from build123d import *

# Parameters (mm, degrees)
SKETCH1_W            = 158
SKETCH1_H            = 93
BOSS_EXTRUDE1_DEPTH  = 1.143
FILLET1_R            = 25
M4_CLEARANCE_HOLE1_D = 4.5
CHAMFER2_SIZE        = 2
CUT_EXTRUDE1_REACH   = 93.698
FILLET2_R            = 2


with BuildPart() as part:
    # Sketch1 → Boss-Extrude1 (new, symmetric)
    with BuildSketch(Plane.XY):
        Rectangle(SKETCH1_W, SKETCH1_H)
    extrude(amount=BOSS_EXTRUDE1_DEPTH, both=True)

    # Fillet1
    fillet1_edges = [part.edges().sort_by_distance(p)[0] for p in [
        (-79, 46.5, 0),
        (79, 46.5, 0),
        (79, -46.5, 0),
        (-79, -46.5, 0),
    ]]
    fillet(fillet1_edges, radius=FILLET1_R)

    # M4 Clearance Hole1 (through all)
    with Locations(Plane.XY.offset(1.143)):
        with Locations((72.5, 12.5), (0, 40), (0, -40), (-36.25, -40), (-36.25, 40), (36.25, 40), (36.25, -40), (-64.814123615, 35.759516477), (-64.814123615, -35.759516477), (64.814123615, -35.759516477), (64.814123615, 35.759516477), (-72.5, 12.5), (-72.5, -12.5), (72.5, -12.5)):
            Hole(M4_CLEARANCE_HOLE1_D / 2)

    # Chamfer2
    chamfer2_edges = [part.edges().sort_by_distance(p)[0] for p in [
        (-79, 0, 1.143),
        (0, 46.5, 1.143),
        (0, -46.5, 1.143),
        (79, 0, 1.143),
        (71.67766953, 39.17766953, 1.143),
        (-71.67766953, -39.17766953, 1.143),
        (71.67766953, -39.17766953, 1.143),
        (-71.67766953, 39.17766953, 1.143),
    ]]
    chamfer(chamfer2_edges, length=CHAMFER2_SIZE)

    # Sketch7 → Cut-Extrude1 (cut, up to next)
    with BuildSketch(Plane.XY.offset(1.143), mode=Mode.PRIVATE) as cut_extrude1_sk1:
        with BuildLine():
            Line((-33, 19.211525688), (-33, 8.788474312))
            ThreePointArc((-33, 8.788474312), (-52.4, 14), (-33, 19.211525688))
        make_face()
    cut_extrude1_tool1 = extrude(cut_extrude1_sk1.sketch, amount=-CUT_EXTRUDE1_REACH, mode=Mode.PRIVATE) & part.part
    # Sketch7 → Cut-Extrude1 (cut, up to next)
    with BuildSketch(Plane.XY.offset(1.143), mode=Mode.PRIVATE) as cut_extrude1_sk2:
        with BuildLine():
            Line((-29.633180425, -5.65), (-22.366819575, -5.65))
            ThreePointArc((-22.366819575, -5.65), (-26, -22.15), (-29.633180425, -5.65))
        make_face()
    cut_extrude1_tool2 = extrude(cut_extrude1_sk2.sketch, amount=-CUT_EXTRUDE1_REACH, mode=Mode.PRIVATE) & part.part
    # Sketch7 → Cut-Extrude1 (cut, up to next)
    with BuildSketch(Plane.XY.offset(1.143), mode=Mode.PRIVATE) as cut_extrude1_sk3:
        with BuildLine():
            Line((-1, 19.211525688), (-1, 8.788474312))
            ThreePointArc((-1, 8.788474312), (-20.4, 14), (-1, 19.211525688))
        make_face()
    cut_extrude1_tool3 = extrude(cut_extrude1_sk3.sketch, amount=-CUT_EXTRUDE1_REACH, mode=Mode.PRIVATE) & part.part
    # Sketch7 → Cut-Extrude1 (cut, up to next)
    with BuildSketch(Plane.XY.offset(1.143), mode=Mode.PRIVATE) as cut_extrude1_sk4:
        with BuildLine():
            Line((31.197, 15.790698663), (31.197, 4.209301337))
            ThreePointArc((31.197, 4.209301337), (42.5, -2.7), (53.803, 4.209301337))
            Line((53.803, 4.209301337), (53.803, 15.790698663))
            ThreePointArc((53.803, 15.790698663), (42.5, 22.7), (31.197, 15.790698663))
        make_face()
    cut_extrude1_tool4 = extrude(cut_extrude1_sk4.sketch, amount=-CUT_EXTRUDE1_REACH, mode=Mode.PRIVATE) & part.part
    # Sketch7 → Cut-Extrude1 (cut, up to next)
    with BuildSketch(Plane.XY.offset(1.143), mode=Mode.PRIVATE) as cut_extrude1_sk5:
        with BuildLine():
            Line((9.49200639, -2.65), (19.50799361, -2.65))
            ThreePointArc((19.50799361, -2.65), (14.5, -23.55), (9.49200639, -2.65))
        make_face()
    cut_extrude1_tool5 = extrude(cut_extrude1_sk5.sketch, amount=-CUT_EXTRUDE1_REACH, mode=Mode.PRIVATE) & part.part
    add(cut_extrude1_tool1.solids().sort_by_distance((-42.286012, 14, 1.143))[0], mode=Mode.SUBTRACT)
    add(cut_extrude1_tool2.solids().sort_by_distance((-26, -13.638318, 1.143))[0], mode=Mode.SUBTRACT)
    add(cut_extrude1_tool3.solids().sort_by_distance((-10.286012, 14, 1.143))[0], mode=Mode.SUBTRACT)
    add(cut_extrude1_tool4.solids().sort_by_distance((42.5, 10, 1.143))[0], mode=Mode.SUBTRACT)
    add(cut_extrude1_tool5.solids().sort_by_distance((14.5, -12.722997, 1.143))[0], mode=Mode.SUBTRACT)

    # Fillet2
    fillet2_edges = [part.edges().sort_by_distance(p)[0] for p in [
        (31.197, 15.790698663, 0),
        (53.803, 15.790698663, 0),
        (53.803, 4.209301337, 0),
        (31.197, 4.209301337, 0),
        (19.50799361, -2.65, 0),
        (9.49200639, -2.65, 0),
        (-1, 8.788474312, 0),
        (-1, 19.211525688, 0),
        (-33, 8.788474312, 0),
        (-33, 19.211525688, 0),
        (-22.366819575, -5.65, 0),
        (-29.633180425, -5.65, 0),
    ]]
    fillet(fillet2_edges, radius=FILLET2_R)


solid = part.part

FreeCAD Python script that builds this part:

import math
import FreeCAD as App
import Part
import Sketcher
Q = App.Units.Quantity


def edges_at(feature, points):
    """Names of the edges that pass closest to the given points."""
    edges = feature.Shape.Edges
    near = lambda p: min(range(len(edges)), key=lambda i: edges[i].distToShape(Part.Vertex(*p))[0])
    return sorted({f"Edge{near(p) + 1}" for p in points})


def add_polygon(sketch, points):
    """Adds a closed chain of lines whose ends are joined by coincident constraints."""
    first, n = sketch.GeometryCount, len(points)
    for a, b in zip(points, points[1:] + points[:1]):
        sketch.addGeometry(Part.LineSegment(App.Vector(*a, 0), App.Vector(*b, 0)), False)
    for i in range(n):
        sketch.addConstraint(Sketcher.Constraint("Coincident", first + i, 2, first + (i + 1) % n, 1))

doc = App.newDocument("Part")
params = doc.addObject("Spreadsheet::Sheet", "Params")
for row, (alias, value) in enumerate([
    ("sketch1_width", "158 mm"),
    ("sketch1_height", "93 mm"),
    ("pad1_length", "2.286 mm"),
    ("fillet_radius", "25 mm"),
    ("sketch2_diameter", "4.5 mm"),
    ("hole_diameter", "4.5 mm"),
    ("chamfer_size", "2 mm"),
    ("sketch3_radius", "10.4 mm"),
    ("sketch4_radius", "8.65 mm"),
    ("sketch5_radius", "10.4 mm"),
    ("sketch6_radius", "12.7 mm"),
    ("sketch7_radius", "11.05 mm"),
    ("fillet2_radius", "2 mm"),
], start=1):
    params.set(f"A{row}", alias)
    params.set(f"B{row}", "=" + value)
    params.setAlias(f"B{row}", alias)

body = doc.addObject("PartDesign::Body", "Body")

# Sketch on XY plane
sketch1 = body.newObject("Sketcher::SketchObject", "Sketch")
sketch1.AttachmentSupport = (doc.getObject("XY_Plane"), [""])
sketch1.MapMode = "FlatFace"
add_polygon(sketch1, [(-79, 46.5), (-79, -46.5), (79, -46.5), (79, 46.5)])  # lines 0-3
sketch1.addConstraint([
    Sketcher.Constraint("Vertical", 0),
    Sketcher.Constraint("Horizontal", 1),
    Sketcher.Constraint("Vertical", 2),
    Sketcher.Constraint("Horizontal", 3),
    Sketcher.Constraint("Symmetric", 0, 2, 2, 2, -1, 1),
    Sketcher.Constraint("DistanceX", 1, 1, 1, 2, Q("158 mm")),
    Sketcher.Constraint("DistanceY", 0, 2, 0, 1, Q("93 mm")),
])
sketch1.setExpression("Constraints[9]", "Params.sketch1_width")
sketch1.setExpression("Constraints[10]", "Params.sketch1_height")
pad1 = body.newObject("PartDesign::Pad", "Pad")
pad1.Profile = sketch1
pad1.setExpression("Length", "Params.pad1_length")
pad1.Midplane = True
doc.recompute()

fillet = body.newObject("PartDesign::Fillet", "Fillet")
fillet.Base = (pad1, edges_at(pad1, [
    (-79, 46.5, 0),
    (79, 46.5, 0),
    (79, -46.5, 0),
    (-79, -46.5, 0),
]))
fillet.setExpression("Radius", "Params.fillet_radius")

# Sketch on XY plane
sketch2 = body.newObject("Sketcher::SketchObject", "Sketch001")
sketch2.AttachmentSupport = (doc.getObject("XY_Plane"), [""])
sketch2.MapMode = "FlatFace"
sketch2.AttachmentOffset = App.Placement(App.Vector(0, 0, 1.143), App.Rotation())
sketch2.addGeometry([
    Part.Circle(App.Vector(72.5, 12.5, 0), App.Vector(0, 0, 1), 2.25),  # 0
    Part.Circle(App.Vector(0, 40, 0), App.Vector(0, 0, 1), 2.25),  # 1
    Part.Circle(App.Vector(0, -40, 0), App.Vector(0, 0, 1), 2.25),  # 2
    Part.Circle(App.Vector(-36.25, -40, 0), App.Vector(0, 0, 1), 2.25),  # 3
    Part.Circle(App.Vector(-36.25, 40, 0), App.Vector(0, 0, 1), 2.25),  # 4
    Part.Circle(App.Vector(36.25, 40, 0), App.Vector(0, 0, 1), 2.25),  # 5
    Part.Circle(App.Vector(36.25, -40, 0), App.Vector(0, 0, 1), 2.25),  # 6
    Part.Circle(App.Vector(-64.814124, 35.759516, 0), App.Vector(0, 0, 1), 2.25),  # 7
    Part.Circle(App.Vector(-64.814124, -35.759516, 0), App.Vector(0, 0, 1), 2.25),  # 8
    Part.Circle(App.Vector(64.814124, -35.759516, 0), App.Vector(0, 0, 1), 2.25),  # 9
    Part.Circle(App.Vector(64.814124, 35.759516, 0), App.Vector(0, 0, 1), 2.25),  # 10
    Part.Circle(App.Vector(-72.5, 12.5, 0), App.Vector(0, 0, 1), 2.25),  # 11
    Part.Circle(App.Vector(-72.5, -12.5, 0), App.Vector(0, 0, 1), 2.25),  # 12
    Part.Circle(App.Vector(72.5, -12.5, 0), App.Vector(0, 0, 1), 2.25),  # 13
], False)
sketch2.addConstraint([
    Sketcher.Constraint("Equal", 0, 1),
    Sketcher.Constraint("Equal", 1, 2),
    Sketcher.Constraint("Equal", 2, 3),
    Sketcher.Constraint("Equal", 3, 4),
    Sketcher.Constraint("Equal", 4, 5),
    Sketcher.Constraint("Equal", 5, 6),
    Sketcher.Constraint("Equal", 6, 7),
    Sketcher.Constraint("Equal", 7, 8),
    Sketcher.Constraint("Equal", 8, 9),
    Sketcher.Constraint("Equal", 9, 10),
    Sketcher.Constraint("Equal", 10, 11),
    Sketcher.Constraint("Equal", 11, 12),
    Sketcher.Constraint("Equal", 12, 13),
    Sketcher.Constraint("Symmetric", 1, 3, 2, 3, -1, 1),
    Sketcher.Constraint("Symmetric", 3, 3, 5, 3, -1, 1),
    Sketcher.Constraint("Symmetric", 4, 3, 6, 3, -1, 1),
    Sketcher.Constraint("Symmetric", 7, 3, 9, 3, -1, 1),
    Sketcher.Constraint("Symmetric", 8, 3, 10, 3, -1, 1),
    Sketcher.Constraint("Symmetric", 0, 3, 12, 3, -1, 1),
    Sketcher.Constraint("Symmetric", 11, 3, 13, 3, -1, 1),
    Sketcher.Constraint("Symmetric", 4, 3, 5, 3, -2),
    Sketcher.Constraint("Symmetric", 8, 3, 9, 3, -2),
    Sketcher.Constraint("Symmetric", 0, 3, 11, 3, -2),
    Sketcher.Constraint("PointOnObject", 1, 3, -2),
    Sketcher.Constraint("Horizontal", 2, 3, 3, 3),
    Sketcher.Constraint("Diameter", 0, Q("4.5 mm")),
    Sketcher.Constraint("DistanceY", -1, 1, 1, 3, Q("40 mm")),
    Sketcher.Constraint("DistanceY", 12, 3, 11, 3, Q("25 mm")),
    Sketcher.Constraint("DistanceX", -1, 1, 0, 3, Q("72.5 mm")),
    Sketcher.Constraint("DistanceX", 4, 3, 5, 3, Q("72.5 mm")),
    Sketcher.Constraint("DistanceX", 7, 3, -1, 1, Q("64.814124 mm")),
    Sketcher.Constraint("DistanceY", -1, 1, 7, 3, Q("35.759516 mm")),
])
sketch2.setExpression("Constraints[25]", "Params.sketch2_diameter")
doc.recompute()
hole = body.newObject("PartDesign::Hole", "Hole")
hole.Profile = sketch2
hole.ThreadType = "None"
hole.setExpression("Diameter", "Params.hole_diameter")
hole.DepthType = "ThroughAll"
doc.recompute()

chamfer = body.newObject("PartDesign::Chamfer", "Chamfer")
chamfer.Base = (hole, edges_at(hole, [
    (-79, 0, 1.143),
    (0, 46.5, 1.143),
    (0, -46.5, 1.143),
    (79, 0, 1.143),
    (71.678, 39.178, 1.143),
    (-71.678, -39.178, 1.143),
    (71.678, -39.178, 1.143),
    (-71.678, 39.178, 1.143),
]))
chamfer.setExpression("Size", "Params.chamfer_size")

# Sketch on XY plane
sketch3 = body.newObject("Sketcher::SketchObject", "Sketch002")
sketch3.AttachmentSupport = (doc.getObject("XY_Plane"), [""])
sketch3.MapMode = "FlatFace"
sketch3.AttachmentOffset = App.Placement(App.Vector(0, 0, 1.143), App.Rotation())
sketch3.addGeometry([
    Part.LineSegment(App.Vector(-33, 8.788474, 0), App.Vector(-33, 19.211526, 0)),
    Part.ArcOfCircle(Part.Circle(App.Vector(-42, 14, 0), App.Vector(0, 0, 1), 10.4), math.radians(30.073348), math.radians(329.926652)),
], False)
sketch3.addConstraint([
    Sketcher.Constraint("Coincident", 0, 1, 1, 2),
    Sketcher.Constraint("Coincident", 1, 1, 0, 2),
    Sketcher.Constraint("Vertical", 0),
    Sketcher.Constraint("Radius", 1, Q("10.4 mm")),
    Sketcher.Constraint("DistanceX", 1, 3, -1, 1, Q("42 mm")),
    Sketcher.Constraint("DistanceY", -1, 1, 1, 3, Q("14 mm")),
    Sketcher.Constraint("DistanceX", 0, 1, -1, 1, Q("33 mm")),
])
sketch3.setExpression("Constraints[3]", "Params.sketch3_radius")
pocket1 = body.newObject("PartDesign::Pocket", "Pocket")
pocket1.Profile = sketch3
pocket1.Type = "UpToFirst"

# Sketch on XY plane
sketch4 = body.newObject("Sketcher::SketchObject", "Sketch003")
sketch4.AttachmentSupport = (doc.getObject("XY_Plane"), [""])
sketch4.MapMode = "FlatFace"
sketch4.AttachmentOffset = App.Placement(App.Vector(0, 0, 1.143), App.Rotation())
sketch4.addGeometry([
    Part.LineSegment(App.Vector(-22.36682, -5.65, 0), App.Vector(-29.63318, -5.65, 0)),
    Part.ArcOfCircle(Part.Circle(App.Vector(-26, -13.5, 0), App.Vector(0, 0, 1), 8.65), math.radians(114.835904), math.radians(425.164096)),
], False)
sketch4.addConstraint([
    Sketcher.Constraint("Coincident", 0, 1, 1, 2),
    Sketcher.Constraint("Coincident", 1, 1, 0, 2),
    Sketcher.Constraint("Horizontal", 0),
    Sketcher.Constraint("Radius", 1, Q("8.65 mm")),
    Sketcher.Constraint("DistanceX", 1, 3, -1, 1, Q("26 mm")),
    Sketcher.Constraint("DistanceY", 1, 3, -1, 1, Q("13.5 mm")),
    Sketcher.Constraint("DistanceY", 0, 1, -1, 1, Q("5.65 mm")),
])
sketch4.setExpression("Constraints[3]", "Params.sketch4_radius")
pocket2 = body.newObject("PartDesign::Pocket", "Pocket001")
pocket2.Profile = sketch4
pocket2.Type = "UpToFirst"

# Sketch on XY plane
sketch5 = body.newObject("Sketcher::SketchObject", "Sketch004")
sketch5.AttachmentSupport = (doc.getObject("XY_Plane"), [""])
sketch5.MapMode = "FlatFace"
sketch5.AttachmentOffset = App.Placement(App.Vector(0, 0, 1.143), App.Rotation())
sketch5.addGeometry([
    Part.LineSegment(App.Vector(-1, 8.788474, 0), App.Vector(-1, 19.211526, 0)),
    Part.ArcOfCircle(Part.Circle(App.Vector(-10, 14, 0), App.Vector(0, 0, 1), 10.4), math.radians(30.073348), math.radians(329.926652)),
], False)
sketch5.addConstraint([
    Sketcher.Constraint("Coincident", 0, 1, 1, 2),
    Sketcher.Constraint("Coincident", 1, 1, 0, 2),
    Sketcher.Constraint("Vertical", 0),
    Sketcher.Constraint("Radius", 1, Q("10.4 mm")),
    Sketcher.Constraint("DistanceX", 1, 3, -1, 1, Q("10 mm")),
    Sketcher.Constraint("DistanceY", -1, 1, 1, 3, Q("14 mm")),
    Sketcher.Constraint("DistanceX", 0, 1, -1, 1, Q("1 mm")),
])
sketch5.setExpression("Constraints[3]", "Params.sketch5_radius")
pocket3 = body.newObject("PartDesign::Pocket", "Pocket002")
pocket3.Profile = sketch5
pocket3.Type = "UpToFirst"

# Sketch on XY plane
sketch6 = body.newObject("Sketcher::SketchObject", "Sketch005")
sketch6.AttachmentSupport = (doc.getObject("XY_Plane"), [""])
sketch6.MapMode = "FlatFace"
sketch6.AttachmentOffset = App.Placement(App.Vector(0, 0, 1.143), App.Rotation())
sketch6.addGeometry([
    Part.LineSegment(App.Vector(31.197, 15.790699, 0), App.Vector(31.197, 4.209301, 0)),
    Part.ArcOfCircle(Part.Circle(App.Vector(42.5, 10, 0), App.Vector(0, 0, 1), 12.7), math.radians(-152.873247), math.radians(-27.126753)),
    Part.LineSegment(App.Vector(53.803, 4.209301, 0), App.Vector(53.803, 15.790699, 0)),
    Part.ArcOfCircle(Part.Circle(App.Vector(42.5, 10, 0), App.Vector(0, 0, 1), 12.7), math.radians(27.126753), math.radians(152.873247)),
], False)
sketch6.addConstraint([
    Sketcher.Constraint("Coincident", 0, 2, 1, 1),
    Sketcher.Constraint("Coincident", 1, 2, 2, 1),
    Sketcher.Constraint("Coincident", 2, 2, 3, 1),
    Sketcher.Constraint("Coincident", 3, 2, 0, 1),
    Sketcher.Constraint("Vertical", 0),
    Sketcher.Constraint("Vertical", 2),
    Sketcher.Constraint("Coincident", 3, 3, 1, 3),
    Sketcher.Constraint("Equal", 1, 3),
    Sketcher.Constraint("Horizontal", 0, 2, 1, 2),
    Sketcher.Constraint("Radius", 1, Q("12.7 mm")),
    Sketcher.Constraint("DistanceY", -1, 1, 1, 3, Q("10 mm")),
    Sketcher.Constraint("DistanceX", -1, 1, 1, 3, Q("42.5 mm")),
    Sketcher.Constraint("DistanceX", -1, 1, 0, 2, Q("31.197 mm")),
])
sketch6.setExpression("Constraints[9]", "Params.sketch6_radius")
pocket4 = body.newObject("PartDesign::Pocket", "Pocket003")
pocket4.Profile = sketch6
pocket4.Type = "UpToFirst"

# Sketch on XY plane
sketch7 = body.newObject("Sketcher::SketchObject", "Sketch006")
sketch7.AttachmentSupport = (doc.getObject("XY_Plane"), [""])
sketch7.MapMode = "FlatFace"
sketch7.AttachmentOffset = App.Placement(App.Vector(0, 0, 1.143), App.Rotation())
sketch7.addGeometry([
    Part.LineSegment(App.Vector(19.507994, -2.65, 0), App.Vector(9.492006, -2.65, 0)),
    Part.ArcOfCircle(Part.Circle(App.Vector(14.5, -12.5, 0), App.Vector(0, 0, 1), 11.05), math.radians(116.949956), math.radians(423.050044)),
], False)
sketch7.addConstraint([
    Sketcher.Constraint("Coincident", 0, 1, 1, 2),
    Sketcher.Constraint("Coincident", 1, 1, 0, 2),
    Sketcher.Constraint("Horizontal", 0),
    Sketcher.Constraint("Radius", 1, Q("11.05 mm")),
    Sketcher.Constraint("DistanceX", -1, 1, 1, 3, Q("14.5 mm")),
    Sketcher.Constraint("DistanceY", 1, 3, -1, 1, Q("12.5 mm")),
    Sketcher.Constraint("DistanceY", 0, 1, -1, 1, Q("2.65 mm")),
])
sketch7.setExpression("Constraints[3]", "Params.sketch7_radius")
pocket5 = body.newObject("PartDesign::Pocket", "Pocket004")
pocket5.Profile = sketch7
pocket5.Type = "UpToFirst"
doc.recompute()

fillet2 = body.newObject("PartDesign::Fillet", "Fillet001")
fillet2.Base = (pocket5, edges_at(pocket5, [
    (31.197, 15.791, 0),
    (53.803, 15.791, 0),
    (53.803, 4.209, 0),
    (31.197, 4.209, 0),
    (19.508, -2.65, 0),
    (9.492, -2.65, 0),
    (-1, 8.788, 0),
    (-1, 19.212, 0),
    (-33, 8.788, 0),
    (-33, 19.212, 0),
    (-22.367, -5.65, 0),
    (-29.633, -5.65, 0),
]))
fillet2.setExpression("Radius", "Params.fillet2_radius")

doc.recompute()
